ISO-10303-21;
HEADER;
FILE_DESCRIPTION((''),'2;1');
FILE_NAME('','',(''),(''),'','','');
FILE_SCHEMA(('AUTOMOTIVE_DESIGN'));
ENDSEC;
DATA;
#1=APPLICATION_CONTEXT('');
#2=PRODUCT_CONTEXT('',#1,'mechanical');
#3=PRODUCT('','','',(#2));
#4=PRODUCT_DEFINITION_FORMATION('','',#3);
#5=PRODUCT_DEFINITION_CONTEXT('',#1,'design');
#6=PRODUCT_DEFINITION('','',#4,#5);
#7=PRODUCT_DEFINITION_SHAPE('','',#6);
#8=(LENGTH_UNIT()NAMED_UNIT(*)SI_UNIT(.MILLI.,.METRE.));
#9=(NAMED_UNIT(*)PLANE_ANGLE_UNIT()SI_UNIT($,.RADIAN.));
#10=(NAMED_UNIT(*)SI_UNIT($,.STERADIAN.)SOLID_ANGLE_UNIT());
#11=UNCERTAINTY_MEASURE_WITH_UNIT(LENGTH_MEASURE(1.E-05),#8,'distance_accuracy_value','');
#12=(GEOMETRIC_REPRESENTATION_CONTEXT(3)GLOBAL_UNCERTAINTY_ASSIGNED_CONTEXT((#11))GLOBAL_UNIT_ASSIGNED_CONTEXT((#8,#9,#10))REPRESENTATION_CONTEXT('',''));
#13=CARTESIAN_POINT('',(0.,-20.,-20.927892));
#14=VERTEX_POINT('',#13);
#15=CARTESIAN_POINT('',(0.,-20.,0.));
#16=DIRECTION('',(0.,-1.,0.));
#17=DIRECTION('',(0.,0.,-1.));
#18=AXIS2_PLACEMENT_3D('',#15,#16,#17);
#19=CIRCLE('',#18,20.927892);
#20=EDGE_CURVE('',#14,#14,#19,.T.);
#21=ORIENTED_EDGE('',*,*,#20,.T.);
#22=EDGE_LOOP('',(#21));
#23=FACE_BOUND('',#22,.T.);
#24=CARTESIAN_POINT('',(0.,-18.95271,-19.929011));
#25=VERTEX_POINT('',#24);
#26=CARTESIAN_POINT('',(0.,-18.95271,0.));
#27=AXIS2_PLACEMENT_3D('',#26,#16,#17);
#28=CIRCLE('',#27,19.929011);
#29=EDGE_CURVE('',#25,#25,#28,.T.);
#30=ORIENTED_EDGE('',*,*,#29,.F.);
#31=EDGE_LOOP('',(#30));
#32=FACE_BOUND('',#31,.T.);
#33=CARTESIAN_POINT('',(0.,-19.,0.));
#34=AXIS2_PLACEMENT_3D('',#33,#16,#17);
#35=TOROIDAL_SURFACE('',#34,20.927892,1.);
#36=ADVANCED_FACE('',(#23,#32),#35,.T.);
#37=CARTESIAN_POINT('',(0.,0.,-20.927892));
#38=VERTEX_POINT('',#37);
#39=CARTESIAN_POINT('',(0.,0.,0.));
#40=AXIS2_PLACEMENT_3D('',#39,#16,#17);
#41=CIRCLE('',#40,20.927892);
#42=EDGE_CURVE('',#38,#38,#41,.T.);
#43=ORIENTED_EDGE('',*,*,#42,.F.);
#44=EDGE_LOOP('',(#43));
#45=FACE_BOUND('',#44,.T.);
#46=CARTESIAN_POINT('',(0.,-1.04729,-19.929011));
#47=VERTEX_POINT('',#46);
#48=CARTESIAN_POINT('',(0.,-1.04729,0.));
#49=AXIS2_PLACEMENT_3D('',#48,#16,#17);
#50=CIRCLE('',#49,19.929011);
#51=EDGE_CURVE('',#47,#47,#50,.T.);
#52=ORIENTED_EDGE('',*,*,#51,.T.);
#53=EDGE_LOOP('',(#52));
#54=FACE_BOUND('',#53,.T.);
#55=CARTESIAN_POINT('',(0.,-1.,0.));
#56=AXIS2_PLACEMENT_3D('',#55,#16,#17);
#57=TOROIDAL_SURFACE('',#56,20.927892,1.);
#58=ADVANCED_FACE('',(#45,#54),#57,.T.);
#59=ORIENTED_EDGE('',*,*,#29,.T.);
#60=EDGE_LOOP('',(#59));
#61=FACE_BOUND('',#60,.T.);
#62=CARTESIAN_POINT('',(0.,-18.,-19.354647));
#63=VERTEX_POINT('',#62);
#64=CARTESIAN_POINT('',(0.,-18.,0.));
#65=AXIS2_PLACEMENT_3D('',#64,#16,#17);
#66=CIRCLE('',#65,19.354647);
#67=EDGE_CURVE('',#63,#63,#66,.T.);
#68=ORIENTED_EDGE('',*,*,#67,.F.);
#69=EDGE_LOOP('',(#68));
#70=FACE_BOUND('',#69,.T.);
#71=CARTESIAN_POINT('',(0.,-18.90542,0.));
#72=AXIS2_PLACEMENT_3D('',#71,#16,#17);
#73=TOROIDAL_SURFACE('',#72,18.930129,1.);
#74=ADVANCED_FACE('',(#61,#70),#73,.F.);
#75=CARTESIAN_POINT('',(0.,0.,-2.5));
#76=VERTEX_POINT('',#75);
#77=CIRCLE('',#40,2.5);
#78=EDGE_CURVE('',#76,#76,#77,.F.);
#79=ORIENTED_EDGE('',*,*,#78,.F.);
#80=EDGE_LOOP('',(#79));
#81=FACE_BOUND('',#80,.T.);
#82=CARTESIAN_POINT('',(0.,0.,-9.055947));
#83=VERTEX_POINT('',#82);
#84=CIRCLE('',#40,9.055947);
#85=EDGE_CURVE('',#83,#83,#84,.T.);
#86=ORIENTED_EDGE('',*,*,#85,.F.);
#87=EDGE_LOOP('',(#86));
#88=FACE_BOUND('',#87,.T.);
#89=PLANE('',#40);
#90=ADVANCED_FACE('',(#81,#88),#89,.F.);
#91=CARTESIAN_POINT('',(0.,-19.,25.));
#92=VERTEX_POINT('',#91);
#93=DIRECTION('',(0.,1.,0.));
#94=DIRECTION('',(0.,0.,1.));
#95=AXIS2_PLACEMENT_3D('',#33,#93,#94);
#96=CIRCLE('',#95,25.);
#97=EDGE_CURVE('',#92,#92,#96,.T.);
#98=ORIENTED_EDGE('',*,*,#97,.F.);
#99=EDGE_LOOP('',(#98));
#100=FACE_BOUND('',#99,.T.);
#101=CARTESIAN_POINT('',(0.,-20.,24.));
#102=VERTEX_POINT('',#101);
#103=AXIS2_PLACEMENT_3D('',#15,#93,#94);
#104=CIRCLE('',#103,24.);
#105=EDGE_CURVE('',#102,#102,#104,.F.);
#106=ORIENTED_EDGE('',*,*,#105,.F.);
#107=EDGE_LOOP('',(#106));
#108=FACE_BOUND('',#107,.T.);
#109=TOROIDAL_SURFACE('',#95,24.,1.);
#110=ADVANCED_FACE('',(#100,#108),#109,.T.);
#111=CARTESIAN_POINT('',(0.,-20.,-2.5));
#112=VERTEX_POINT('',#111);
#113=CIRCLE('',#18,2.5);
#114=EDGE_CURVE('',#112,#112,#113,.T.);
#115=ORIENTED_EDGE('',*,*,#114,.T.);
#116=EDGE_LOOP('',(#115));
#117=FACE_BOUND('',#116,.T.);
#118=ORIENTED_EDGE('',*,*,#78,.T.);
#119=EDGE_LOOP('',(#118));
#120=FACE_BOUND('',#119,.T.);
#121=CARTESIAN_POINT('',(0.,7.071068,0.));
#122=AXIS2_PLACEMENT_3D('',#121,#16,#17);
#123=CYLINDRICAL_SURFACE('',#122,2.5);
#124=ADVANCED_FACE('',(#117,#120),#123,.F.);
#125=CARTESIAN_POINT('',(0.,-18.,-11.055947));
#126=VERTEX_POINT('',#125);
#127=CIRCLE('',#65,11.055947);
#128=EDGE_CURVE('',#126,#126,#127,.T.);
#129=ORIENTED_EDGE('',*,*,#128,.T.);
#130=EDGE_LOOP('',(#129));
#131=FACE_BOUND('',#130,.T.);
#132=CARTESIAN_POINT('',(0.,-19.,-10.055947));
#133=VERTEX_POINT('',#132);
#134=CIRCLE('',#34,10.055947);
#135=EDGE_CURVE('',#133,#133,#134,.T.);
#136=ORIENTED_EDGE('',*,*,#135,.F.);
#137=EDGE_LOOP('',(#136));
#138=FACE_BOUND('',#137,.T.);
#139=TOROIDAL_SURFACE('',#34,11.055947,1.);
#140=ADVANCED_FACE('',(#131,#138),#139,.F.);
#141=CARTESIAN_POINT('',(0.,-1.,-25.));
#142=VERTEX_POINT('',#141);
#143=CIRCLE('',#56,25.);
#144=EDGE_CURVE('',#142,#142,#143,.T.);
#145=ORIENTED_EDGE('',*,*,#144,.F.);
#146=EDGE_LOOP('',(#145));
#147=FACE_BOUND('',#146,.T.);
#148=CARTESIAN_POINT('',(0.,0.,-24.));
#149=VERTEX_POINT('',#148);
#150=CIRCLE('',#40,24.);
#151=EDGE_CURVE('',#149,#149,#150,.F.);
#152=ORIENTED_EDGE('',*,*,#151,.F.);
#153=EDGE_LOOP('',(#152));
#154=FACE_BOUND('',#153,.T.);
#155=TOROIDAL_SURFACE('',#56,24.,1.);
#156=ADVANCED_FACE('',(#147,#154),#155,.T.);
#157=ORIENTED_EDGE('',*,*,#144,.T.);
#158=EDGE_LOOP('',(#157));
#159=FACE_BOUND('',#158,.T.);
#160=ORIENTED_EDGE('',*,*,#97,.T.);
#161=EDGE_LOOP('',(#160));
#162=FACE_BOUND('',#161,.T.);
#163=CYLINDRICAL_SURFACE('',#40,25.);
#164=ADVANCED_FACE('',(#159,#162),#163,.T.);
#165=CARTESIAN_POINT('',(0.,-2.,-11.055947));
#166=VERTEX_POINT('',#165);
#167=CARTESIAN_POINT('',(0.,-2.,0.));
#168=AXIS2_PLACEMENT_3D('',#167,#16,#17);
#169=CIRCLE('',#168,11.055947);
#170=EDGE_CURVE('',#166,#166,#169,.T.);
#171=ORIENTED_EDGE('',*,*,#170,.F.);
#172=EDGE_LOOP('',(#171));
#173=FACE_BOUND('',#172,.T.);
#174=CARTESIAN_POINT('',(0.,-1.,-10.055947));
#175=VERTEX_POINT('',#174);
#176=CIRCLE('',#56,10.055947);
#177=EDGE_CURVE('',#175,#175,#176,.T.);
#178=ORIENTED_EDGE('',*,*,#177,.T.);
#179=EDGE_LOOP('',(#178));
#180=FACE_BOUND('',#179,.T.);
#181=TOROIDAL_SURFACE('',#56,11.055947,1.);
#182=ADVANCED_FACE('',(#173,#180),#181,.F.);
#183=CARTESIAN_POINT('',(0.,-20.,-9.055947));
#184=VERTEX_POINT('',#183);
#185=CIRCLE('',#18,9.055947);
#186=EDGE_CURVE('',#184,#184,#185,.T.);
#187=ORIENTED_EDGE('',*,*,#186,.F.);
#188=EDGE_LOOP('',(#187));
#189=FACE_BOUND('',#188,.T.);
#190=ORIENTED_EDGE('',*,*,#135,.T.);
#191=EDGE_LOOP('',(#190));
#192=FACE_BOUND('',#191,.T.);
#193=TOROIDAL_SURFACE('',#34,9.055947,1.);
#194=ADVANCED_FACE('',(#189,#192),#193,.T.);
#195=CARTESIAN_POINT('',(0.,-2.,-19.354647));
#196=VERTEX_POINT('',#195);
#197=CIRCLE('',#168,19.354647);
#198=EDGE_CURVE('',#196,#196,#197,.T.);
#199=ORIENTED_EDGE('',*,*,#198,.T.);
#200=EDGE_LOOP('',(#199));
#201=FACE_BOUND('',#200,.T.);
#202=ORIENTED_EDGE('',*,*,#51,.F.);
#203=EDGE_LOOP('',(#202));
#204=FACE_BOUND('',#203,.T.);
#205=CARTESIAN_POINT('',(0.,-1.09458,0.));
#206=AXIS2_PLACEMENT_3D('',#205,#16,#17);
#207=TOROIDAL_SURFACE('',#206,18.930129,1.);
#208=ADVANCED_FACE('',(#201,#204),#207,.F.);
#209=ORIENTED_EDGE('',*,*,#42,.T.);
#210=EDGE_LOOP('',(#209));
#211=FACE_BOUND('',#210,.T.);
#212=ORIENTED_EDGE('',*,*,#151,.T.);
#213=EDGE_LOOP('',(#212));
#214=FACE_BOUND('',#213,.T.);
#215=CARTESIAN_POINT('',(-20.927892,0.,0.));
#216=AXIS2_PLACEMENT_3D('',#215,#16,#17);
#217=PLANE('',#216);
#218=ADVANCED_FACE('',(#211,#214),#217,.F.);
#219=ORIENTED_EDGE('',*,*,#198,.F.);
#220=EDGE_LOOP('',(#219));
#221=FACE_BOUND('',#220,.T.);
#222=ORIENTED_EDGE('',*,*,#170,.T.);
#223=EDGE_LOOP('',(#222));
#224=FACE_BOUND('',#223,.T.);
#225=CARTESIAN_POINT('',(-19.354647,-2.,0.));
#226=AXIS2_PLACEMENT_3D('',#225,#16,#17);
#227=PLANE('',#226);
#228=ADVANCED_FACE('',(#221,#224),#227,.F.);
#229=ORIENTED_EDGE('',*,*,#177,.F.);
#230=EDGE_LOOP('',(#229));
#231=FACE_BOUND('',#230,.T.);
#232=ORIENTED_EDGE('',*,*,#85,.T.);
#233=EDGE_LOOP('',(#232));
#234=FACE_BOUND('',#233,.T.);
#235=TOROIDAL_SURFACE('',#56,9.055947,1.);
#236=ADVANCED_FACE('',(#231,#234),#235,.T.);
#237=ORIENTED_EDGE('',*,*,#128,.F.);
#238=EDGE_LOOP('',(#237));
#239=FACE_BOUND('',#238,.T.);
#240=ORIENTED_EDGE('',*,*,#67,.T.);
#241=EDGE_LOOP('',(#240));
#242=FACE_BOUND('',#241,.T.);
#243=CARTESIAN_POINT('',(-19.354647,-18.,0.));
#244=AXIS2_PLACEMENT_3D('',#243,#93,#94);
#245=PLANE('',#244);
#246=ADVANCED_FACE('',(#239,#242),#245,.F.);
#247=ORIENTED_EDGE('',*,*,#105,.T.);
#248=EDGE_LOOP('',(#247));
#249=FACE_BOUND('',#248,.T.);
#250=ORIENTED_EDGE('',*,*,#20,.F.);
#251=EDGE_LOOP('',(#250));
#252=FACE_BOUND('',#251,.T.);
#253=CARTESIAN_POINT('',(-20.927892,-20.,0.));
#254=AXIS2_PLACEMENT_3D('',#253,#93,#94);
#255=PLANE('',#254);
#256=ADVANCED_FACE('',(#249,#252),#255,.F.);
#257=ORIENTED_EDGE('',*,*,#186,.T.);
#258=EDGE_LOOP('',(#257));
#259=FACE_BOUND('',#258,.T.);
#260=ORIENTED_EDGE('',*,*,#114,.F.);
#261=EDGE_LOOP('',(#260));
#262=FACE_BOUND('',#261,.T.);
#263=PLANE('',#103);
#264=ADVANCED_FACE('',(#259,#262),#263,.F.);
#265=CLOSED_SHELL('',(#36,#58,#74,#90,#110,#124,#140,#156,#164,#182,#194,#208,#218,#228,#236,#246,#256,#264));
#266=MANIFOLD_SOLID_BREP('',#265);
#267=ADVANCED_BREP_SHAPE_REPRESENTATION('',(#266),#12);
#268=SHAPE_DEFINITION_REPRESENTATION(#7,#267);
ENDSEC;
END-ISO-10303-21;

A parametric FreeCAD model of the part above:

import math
import FreeCAD as App
import Part
import Sketcher
from FreeCAD import Vector


def edges_at(feature, points):
    """Names of the edges that pass closest to the given points."""
    edges = feature.Shape.Edges
    near = lambda p: min(range(len(edges)), key=lambda i: edges[i].distToShape(Part.Vertex(*p))[0])
    return sorted({f"Edge{near(p) + 1}" for p in points})

doc = App.newDocument("Part")
body = doc.addObject("PartDesign::Body", "Body")

sketch1 = body.newObject("Sketcher::SketchObject", "Sketch")
sketch1.AttachmentSupport = (doc.getObject("XY_Plane"), [""])
sketch1.MapMode = "FlatFace"
sketch1.addGeometry([
    Part.LineSegment(Vector(0, 0, 0), Vector(-9.1, 0, 0)),
    Part.ArcOfCircle(Part.Circle(Vector(-9.1, -1, 0), Vector(0, 0, 1), 1), math.radians(90), math.radians(180)),
    Part.ArcOfCircle(Part.Circle(Vector(-11.1, -1, 0), Vector(0, 0, 1), 1), math.radians(-90), math.radians(0)),
    Part.LineSegment(Vector(-11.1, -2, 0), Vector(-19.4, -2, 0)),
    Part.ArcOfCircle(Part.Circle(Vector(-18.9, -1.1, 0), Vector(0, 0, 1), 1), math.radians(177), math.radians(245)),
    Part.ArcOfCircle(Part.Circle(Vector(-20.9, -1, 0), Vector(0, 0, 1), 1), math.radians(-3), math.radians(90)),
    Part.LineSegment(Vector(-20.9, 0, 0), Vector(-25, 0, 0)),
    Part.LineSegment(Vector(-25, 0, 0), Vector(-25, -20, 0)),
    Part.LineSegment(Vector(-25, -20, 0), Vector(-20.9, -20, 0)),
    Part.ArcOfCircle(Part.Circle(Vector(-20.9, -19, 0), Vector(0, 0, 1), 1), math.radians(-90), math.radians(3)),
    Part.ArcOfCircle(Part.Circle(Vector(-18.9, -18.9, 0), Vector(0, 0, 1), 1), math.radians(115), math.radians(183)),
    Part.LineSegment(Vector(-19.4, -18, 0), Vector(-11.1, -18, 0)),
    Part.ArcOfCircle(Part.Circle(Vector(-11.1, -19, 0), Vector(0, 0, 1), 1), math.radians(0), math.radians(90)),
    Part.ArcOfCircle(Part.Circle(Vector(-9.1, -19, 0), Vector(0, 0, 1), 1), math.radians(-180), math.radians(-90)),
    Part.LineSegment(Vector(-9.1, -20, 0), Vector(0, -20, 0)),
    Part.LineSegment(Vector(0, -20, 0), Vector(0, 0, 0)),
], False)
sketch1.addConstraint([
    Sketcher.Constraint("Tangent", 0, 2, 1, 1),
    Sketcher.Constraint("Tangent", 1, 2, 2, 2),
    Sketcher.Constraint("Tangent", 2, 1, 3, 1),
    Sketcher.Constraint("Coincident", 3, 2, 4, 2),
    Sketcher.Constraint("Tangent", 4, 1, 5, 1),
    Sketcher.Constraint("Tangent", 5, 2, 6, 1),
    Sketcher.Constraint("Coincident", 6, 2, 7, 1),
    Sketcher.Constraint("Coincident", 7, 2, 8, 1),
    Sketcher.Constraint("Tangent", 8, 2, 9, 1),
    Sketcher.Constraint("Tangent", 9, 2, 10, 2),
    Sketcher.Constraint("Coincident", 10, 1, 11, 1),
    Sketcher.Constraint("Tangent", 11, 2, 12, 2),
    Sketcher.Constraint("Tangent", 12, 1, 13, 1),
    Sketcher.Constraint("Tangent", 13, 2, 14, 1),
    Sketcher.Constraint("Coincident", 14, 2, 15, 1),
    Sketcher.Constraint("Coincident", 15, 2, 0, 1),
    Sketcher.Constraint("Horizontal", 0),
    Sketcher.Constraint("Horizontal", 3),
    Sketcher.Constraint("Horizontal", 6),
    Sketcher.Constraint("Vertical", 7),
    Sketcher.Constraint("Horizontal", 8),
    Sketcher.Constraint("Horizontal", 11),
    Sketcher.Constraint("Horizontal", 14),
    Sketcher.Constraint("Vertical", 15),
    Sketcher.Constraint("Coincident", 15, 2, -1, 1),
    Sketcher.Constraint("Equal", 1, 2),
    Sketcher.Constraint("Equal", 2, 4),
    Sketcher.Constraint("Equal", 4, 5),
    Sketcher.Constraint("Equal", 5, 9),
    Sketcher.Constraint("Equal", 9, 10),
    Sketcher.Constraint("Equal", 10, 12),
    Sketcher.Constraint("Equal", 12, 13),
    Sketcher.Constraint("PointOnObject", 5, 2, -1),
    Sketcher.Constraint("Horizontal", 1, 3, 2, 3),
    Sketcher.Constraint("Horizontal", 9, 3, 12, 3),
    Sketcher.Constraint("Horizontal", 12, 3, 13, 3),
    Sketcher.Constraint("Vertical", 5, 3, 9, 3),
    Sketcher.Constraint("Vertical", 4, 3, 10, 3),
    Sketcher.Constraint("Vertical", 2, 3, 12, 3),
    Sketcher.Constraint("Radius", 1, 1.0),
    Sketcher.Constraint("DistanceY", 7, 2, 7, 1, 20.0),
    Sketcher.Constraint("DistanceX", 6, 2, -1, 1, 25.0),
    Sketcher.Constraint("DistanceX", 3, 2, 3, 1, 8.298701),
    Sketcher.Constraint("DistanceX", 6, 2, 6, 1, 4.072108),
    Sketcher.Constraint("DistanceX", 0, 2, 0, 1, 9.055947),
])
revolution = body.newObject("PartDesign::Revolution", "Revolution")
revolution.Profile = sketch1
revolution.ReferenceAxis = (sketch1, ["V_Axis"])
revolution.Angle = 360

sketch2 = body.newObject("Sketcher::SketchObject", "Sketch001")
sketch2.AttachmentSupport = (doc.getObject("XZ_Plane"), [""])
sketch2.MapMode = "FlatFace"
sketch2.AttachmentOffset = App.Placement(Vector(0, 0, 20), App.Rotation())
sketch2.addGeometry(Part.Circle(Vector(0, 0, 0), Vector(0, 0, 1), 2.5), False)
sketch2.addConstraint([
    Sketcher.Constraint("Coincident", 0, 3, -1, 1),
    Sketcher.Constraint("Diameter", 0, 5.0),
])
pocket1 = body.newObject("PartDesign::Pocket", "Pocket")
pocket1.Profile = sketch2
pocket1.Length = 20
doc.recompute()

fillet = body.newObject("PartDesign::Fillet", "Fillet")
fillet.Base = (pocket1, edges_at(pocket1, [(0, -20, 25), (0, 0, 25)]))
fillet.Radius = 1

doc.recompute()
